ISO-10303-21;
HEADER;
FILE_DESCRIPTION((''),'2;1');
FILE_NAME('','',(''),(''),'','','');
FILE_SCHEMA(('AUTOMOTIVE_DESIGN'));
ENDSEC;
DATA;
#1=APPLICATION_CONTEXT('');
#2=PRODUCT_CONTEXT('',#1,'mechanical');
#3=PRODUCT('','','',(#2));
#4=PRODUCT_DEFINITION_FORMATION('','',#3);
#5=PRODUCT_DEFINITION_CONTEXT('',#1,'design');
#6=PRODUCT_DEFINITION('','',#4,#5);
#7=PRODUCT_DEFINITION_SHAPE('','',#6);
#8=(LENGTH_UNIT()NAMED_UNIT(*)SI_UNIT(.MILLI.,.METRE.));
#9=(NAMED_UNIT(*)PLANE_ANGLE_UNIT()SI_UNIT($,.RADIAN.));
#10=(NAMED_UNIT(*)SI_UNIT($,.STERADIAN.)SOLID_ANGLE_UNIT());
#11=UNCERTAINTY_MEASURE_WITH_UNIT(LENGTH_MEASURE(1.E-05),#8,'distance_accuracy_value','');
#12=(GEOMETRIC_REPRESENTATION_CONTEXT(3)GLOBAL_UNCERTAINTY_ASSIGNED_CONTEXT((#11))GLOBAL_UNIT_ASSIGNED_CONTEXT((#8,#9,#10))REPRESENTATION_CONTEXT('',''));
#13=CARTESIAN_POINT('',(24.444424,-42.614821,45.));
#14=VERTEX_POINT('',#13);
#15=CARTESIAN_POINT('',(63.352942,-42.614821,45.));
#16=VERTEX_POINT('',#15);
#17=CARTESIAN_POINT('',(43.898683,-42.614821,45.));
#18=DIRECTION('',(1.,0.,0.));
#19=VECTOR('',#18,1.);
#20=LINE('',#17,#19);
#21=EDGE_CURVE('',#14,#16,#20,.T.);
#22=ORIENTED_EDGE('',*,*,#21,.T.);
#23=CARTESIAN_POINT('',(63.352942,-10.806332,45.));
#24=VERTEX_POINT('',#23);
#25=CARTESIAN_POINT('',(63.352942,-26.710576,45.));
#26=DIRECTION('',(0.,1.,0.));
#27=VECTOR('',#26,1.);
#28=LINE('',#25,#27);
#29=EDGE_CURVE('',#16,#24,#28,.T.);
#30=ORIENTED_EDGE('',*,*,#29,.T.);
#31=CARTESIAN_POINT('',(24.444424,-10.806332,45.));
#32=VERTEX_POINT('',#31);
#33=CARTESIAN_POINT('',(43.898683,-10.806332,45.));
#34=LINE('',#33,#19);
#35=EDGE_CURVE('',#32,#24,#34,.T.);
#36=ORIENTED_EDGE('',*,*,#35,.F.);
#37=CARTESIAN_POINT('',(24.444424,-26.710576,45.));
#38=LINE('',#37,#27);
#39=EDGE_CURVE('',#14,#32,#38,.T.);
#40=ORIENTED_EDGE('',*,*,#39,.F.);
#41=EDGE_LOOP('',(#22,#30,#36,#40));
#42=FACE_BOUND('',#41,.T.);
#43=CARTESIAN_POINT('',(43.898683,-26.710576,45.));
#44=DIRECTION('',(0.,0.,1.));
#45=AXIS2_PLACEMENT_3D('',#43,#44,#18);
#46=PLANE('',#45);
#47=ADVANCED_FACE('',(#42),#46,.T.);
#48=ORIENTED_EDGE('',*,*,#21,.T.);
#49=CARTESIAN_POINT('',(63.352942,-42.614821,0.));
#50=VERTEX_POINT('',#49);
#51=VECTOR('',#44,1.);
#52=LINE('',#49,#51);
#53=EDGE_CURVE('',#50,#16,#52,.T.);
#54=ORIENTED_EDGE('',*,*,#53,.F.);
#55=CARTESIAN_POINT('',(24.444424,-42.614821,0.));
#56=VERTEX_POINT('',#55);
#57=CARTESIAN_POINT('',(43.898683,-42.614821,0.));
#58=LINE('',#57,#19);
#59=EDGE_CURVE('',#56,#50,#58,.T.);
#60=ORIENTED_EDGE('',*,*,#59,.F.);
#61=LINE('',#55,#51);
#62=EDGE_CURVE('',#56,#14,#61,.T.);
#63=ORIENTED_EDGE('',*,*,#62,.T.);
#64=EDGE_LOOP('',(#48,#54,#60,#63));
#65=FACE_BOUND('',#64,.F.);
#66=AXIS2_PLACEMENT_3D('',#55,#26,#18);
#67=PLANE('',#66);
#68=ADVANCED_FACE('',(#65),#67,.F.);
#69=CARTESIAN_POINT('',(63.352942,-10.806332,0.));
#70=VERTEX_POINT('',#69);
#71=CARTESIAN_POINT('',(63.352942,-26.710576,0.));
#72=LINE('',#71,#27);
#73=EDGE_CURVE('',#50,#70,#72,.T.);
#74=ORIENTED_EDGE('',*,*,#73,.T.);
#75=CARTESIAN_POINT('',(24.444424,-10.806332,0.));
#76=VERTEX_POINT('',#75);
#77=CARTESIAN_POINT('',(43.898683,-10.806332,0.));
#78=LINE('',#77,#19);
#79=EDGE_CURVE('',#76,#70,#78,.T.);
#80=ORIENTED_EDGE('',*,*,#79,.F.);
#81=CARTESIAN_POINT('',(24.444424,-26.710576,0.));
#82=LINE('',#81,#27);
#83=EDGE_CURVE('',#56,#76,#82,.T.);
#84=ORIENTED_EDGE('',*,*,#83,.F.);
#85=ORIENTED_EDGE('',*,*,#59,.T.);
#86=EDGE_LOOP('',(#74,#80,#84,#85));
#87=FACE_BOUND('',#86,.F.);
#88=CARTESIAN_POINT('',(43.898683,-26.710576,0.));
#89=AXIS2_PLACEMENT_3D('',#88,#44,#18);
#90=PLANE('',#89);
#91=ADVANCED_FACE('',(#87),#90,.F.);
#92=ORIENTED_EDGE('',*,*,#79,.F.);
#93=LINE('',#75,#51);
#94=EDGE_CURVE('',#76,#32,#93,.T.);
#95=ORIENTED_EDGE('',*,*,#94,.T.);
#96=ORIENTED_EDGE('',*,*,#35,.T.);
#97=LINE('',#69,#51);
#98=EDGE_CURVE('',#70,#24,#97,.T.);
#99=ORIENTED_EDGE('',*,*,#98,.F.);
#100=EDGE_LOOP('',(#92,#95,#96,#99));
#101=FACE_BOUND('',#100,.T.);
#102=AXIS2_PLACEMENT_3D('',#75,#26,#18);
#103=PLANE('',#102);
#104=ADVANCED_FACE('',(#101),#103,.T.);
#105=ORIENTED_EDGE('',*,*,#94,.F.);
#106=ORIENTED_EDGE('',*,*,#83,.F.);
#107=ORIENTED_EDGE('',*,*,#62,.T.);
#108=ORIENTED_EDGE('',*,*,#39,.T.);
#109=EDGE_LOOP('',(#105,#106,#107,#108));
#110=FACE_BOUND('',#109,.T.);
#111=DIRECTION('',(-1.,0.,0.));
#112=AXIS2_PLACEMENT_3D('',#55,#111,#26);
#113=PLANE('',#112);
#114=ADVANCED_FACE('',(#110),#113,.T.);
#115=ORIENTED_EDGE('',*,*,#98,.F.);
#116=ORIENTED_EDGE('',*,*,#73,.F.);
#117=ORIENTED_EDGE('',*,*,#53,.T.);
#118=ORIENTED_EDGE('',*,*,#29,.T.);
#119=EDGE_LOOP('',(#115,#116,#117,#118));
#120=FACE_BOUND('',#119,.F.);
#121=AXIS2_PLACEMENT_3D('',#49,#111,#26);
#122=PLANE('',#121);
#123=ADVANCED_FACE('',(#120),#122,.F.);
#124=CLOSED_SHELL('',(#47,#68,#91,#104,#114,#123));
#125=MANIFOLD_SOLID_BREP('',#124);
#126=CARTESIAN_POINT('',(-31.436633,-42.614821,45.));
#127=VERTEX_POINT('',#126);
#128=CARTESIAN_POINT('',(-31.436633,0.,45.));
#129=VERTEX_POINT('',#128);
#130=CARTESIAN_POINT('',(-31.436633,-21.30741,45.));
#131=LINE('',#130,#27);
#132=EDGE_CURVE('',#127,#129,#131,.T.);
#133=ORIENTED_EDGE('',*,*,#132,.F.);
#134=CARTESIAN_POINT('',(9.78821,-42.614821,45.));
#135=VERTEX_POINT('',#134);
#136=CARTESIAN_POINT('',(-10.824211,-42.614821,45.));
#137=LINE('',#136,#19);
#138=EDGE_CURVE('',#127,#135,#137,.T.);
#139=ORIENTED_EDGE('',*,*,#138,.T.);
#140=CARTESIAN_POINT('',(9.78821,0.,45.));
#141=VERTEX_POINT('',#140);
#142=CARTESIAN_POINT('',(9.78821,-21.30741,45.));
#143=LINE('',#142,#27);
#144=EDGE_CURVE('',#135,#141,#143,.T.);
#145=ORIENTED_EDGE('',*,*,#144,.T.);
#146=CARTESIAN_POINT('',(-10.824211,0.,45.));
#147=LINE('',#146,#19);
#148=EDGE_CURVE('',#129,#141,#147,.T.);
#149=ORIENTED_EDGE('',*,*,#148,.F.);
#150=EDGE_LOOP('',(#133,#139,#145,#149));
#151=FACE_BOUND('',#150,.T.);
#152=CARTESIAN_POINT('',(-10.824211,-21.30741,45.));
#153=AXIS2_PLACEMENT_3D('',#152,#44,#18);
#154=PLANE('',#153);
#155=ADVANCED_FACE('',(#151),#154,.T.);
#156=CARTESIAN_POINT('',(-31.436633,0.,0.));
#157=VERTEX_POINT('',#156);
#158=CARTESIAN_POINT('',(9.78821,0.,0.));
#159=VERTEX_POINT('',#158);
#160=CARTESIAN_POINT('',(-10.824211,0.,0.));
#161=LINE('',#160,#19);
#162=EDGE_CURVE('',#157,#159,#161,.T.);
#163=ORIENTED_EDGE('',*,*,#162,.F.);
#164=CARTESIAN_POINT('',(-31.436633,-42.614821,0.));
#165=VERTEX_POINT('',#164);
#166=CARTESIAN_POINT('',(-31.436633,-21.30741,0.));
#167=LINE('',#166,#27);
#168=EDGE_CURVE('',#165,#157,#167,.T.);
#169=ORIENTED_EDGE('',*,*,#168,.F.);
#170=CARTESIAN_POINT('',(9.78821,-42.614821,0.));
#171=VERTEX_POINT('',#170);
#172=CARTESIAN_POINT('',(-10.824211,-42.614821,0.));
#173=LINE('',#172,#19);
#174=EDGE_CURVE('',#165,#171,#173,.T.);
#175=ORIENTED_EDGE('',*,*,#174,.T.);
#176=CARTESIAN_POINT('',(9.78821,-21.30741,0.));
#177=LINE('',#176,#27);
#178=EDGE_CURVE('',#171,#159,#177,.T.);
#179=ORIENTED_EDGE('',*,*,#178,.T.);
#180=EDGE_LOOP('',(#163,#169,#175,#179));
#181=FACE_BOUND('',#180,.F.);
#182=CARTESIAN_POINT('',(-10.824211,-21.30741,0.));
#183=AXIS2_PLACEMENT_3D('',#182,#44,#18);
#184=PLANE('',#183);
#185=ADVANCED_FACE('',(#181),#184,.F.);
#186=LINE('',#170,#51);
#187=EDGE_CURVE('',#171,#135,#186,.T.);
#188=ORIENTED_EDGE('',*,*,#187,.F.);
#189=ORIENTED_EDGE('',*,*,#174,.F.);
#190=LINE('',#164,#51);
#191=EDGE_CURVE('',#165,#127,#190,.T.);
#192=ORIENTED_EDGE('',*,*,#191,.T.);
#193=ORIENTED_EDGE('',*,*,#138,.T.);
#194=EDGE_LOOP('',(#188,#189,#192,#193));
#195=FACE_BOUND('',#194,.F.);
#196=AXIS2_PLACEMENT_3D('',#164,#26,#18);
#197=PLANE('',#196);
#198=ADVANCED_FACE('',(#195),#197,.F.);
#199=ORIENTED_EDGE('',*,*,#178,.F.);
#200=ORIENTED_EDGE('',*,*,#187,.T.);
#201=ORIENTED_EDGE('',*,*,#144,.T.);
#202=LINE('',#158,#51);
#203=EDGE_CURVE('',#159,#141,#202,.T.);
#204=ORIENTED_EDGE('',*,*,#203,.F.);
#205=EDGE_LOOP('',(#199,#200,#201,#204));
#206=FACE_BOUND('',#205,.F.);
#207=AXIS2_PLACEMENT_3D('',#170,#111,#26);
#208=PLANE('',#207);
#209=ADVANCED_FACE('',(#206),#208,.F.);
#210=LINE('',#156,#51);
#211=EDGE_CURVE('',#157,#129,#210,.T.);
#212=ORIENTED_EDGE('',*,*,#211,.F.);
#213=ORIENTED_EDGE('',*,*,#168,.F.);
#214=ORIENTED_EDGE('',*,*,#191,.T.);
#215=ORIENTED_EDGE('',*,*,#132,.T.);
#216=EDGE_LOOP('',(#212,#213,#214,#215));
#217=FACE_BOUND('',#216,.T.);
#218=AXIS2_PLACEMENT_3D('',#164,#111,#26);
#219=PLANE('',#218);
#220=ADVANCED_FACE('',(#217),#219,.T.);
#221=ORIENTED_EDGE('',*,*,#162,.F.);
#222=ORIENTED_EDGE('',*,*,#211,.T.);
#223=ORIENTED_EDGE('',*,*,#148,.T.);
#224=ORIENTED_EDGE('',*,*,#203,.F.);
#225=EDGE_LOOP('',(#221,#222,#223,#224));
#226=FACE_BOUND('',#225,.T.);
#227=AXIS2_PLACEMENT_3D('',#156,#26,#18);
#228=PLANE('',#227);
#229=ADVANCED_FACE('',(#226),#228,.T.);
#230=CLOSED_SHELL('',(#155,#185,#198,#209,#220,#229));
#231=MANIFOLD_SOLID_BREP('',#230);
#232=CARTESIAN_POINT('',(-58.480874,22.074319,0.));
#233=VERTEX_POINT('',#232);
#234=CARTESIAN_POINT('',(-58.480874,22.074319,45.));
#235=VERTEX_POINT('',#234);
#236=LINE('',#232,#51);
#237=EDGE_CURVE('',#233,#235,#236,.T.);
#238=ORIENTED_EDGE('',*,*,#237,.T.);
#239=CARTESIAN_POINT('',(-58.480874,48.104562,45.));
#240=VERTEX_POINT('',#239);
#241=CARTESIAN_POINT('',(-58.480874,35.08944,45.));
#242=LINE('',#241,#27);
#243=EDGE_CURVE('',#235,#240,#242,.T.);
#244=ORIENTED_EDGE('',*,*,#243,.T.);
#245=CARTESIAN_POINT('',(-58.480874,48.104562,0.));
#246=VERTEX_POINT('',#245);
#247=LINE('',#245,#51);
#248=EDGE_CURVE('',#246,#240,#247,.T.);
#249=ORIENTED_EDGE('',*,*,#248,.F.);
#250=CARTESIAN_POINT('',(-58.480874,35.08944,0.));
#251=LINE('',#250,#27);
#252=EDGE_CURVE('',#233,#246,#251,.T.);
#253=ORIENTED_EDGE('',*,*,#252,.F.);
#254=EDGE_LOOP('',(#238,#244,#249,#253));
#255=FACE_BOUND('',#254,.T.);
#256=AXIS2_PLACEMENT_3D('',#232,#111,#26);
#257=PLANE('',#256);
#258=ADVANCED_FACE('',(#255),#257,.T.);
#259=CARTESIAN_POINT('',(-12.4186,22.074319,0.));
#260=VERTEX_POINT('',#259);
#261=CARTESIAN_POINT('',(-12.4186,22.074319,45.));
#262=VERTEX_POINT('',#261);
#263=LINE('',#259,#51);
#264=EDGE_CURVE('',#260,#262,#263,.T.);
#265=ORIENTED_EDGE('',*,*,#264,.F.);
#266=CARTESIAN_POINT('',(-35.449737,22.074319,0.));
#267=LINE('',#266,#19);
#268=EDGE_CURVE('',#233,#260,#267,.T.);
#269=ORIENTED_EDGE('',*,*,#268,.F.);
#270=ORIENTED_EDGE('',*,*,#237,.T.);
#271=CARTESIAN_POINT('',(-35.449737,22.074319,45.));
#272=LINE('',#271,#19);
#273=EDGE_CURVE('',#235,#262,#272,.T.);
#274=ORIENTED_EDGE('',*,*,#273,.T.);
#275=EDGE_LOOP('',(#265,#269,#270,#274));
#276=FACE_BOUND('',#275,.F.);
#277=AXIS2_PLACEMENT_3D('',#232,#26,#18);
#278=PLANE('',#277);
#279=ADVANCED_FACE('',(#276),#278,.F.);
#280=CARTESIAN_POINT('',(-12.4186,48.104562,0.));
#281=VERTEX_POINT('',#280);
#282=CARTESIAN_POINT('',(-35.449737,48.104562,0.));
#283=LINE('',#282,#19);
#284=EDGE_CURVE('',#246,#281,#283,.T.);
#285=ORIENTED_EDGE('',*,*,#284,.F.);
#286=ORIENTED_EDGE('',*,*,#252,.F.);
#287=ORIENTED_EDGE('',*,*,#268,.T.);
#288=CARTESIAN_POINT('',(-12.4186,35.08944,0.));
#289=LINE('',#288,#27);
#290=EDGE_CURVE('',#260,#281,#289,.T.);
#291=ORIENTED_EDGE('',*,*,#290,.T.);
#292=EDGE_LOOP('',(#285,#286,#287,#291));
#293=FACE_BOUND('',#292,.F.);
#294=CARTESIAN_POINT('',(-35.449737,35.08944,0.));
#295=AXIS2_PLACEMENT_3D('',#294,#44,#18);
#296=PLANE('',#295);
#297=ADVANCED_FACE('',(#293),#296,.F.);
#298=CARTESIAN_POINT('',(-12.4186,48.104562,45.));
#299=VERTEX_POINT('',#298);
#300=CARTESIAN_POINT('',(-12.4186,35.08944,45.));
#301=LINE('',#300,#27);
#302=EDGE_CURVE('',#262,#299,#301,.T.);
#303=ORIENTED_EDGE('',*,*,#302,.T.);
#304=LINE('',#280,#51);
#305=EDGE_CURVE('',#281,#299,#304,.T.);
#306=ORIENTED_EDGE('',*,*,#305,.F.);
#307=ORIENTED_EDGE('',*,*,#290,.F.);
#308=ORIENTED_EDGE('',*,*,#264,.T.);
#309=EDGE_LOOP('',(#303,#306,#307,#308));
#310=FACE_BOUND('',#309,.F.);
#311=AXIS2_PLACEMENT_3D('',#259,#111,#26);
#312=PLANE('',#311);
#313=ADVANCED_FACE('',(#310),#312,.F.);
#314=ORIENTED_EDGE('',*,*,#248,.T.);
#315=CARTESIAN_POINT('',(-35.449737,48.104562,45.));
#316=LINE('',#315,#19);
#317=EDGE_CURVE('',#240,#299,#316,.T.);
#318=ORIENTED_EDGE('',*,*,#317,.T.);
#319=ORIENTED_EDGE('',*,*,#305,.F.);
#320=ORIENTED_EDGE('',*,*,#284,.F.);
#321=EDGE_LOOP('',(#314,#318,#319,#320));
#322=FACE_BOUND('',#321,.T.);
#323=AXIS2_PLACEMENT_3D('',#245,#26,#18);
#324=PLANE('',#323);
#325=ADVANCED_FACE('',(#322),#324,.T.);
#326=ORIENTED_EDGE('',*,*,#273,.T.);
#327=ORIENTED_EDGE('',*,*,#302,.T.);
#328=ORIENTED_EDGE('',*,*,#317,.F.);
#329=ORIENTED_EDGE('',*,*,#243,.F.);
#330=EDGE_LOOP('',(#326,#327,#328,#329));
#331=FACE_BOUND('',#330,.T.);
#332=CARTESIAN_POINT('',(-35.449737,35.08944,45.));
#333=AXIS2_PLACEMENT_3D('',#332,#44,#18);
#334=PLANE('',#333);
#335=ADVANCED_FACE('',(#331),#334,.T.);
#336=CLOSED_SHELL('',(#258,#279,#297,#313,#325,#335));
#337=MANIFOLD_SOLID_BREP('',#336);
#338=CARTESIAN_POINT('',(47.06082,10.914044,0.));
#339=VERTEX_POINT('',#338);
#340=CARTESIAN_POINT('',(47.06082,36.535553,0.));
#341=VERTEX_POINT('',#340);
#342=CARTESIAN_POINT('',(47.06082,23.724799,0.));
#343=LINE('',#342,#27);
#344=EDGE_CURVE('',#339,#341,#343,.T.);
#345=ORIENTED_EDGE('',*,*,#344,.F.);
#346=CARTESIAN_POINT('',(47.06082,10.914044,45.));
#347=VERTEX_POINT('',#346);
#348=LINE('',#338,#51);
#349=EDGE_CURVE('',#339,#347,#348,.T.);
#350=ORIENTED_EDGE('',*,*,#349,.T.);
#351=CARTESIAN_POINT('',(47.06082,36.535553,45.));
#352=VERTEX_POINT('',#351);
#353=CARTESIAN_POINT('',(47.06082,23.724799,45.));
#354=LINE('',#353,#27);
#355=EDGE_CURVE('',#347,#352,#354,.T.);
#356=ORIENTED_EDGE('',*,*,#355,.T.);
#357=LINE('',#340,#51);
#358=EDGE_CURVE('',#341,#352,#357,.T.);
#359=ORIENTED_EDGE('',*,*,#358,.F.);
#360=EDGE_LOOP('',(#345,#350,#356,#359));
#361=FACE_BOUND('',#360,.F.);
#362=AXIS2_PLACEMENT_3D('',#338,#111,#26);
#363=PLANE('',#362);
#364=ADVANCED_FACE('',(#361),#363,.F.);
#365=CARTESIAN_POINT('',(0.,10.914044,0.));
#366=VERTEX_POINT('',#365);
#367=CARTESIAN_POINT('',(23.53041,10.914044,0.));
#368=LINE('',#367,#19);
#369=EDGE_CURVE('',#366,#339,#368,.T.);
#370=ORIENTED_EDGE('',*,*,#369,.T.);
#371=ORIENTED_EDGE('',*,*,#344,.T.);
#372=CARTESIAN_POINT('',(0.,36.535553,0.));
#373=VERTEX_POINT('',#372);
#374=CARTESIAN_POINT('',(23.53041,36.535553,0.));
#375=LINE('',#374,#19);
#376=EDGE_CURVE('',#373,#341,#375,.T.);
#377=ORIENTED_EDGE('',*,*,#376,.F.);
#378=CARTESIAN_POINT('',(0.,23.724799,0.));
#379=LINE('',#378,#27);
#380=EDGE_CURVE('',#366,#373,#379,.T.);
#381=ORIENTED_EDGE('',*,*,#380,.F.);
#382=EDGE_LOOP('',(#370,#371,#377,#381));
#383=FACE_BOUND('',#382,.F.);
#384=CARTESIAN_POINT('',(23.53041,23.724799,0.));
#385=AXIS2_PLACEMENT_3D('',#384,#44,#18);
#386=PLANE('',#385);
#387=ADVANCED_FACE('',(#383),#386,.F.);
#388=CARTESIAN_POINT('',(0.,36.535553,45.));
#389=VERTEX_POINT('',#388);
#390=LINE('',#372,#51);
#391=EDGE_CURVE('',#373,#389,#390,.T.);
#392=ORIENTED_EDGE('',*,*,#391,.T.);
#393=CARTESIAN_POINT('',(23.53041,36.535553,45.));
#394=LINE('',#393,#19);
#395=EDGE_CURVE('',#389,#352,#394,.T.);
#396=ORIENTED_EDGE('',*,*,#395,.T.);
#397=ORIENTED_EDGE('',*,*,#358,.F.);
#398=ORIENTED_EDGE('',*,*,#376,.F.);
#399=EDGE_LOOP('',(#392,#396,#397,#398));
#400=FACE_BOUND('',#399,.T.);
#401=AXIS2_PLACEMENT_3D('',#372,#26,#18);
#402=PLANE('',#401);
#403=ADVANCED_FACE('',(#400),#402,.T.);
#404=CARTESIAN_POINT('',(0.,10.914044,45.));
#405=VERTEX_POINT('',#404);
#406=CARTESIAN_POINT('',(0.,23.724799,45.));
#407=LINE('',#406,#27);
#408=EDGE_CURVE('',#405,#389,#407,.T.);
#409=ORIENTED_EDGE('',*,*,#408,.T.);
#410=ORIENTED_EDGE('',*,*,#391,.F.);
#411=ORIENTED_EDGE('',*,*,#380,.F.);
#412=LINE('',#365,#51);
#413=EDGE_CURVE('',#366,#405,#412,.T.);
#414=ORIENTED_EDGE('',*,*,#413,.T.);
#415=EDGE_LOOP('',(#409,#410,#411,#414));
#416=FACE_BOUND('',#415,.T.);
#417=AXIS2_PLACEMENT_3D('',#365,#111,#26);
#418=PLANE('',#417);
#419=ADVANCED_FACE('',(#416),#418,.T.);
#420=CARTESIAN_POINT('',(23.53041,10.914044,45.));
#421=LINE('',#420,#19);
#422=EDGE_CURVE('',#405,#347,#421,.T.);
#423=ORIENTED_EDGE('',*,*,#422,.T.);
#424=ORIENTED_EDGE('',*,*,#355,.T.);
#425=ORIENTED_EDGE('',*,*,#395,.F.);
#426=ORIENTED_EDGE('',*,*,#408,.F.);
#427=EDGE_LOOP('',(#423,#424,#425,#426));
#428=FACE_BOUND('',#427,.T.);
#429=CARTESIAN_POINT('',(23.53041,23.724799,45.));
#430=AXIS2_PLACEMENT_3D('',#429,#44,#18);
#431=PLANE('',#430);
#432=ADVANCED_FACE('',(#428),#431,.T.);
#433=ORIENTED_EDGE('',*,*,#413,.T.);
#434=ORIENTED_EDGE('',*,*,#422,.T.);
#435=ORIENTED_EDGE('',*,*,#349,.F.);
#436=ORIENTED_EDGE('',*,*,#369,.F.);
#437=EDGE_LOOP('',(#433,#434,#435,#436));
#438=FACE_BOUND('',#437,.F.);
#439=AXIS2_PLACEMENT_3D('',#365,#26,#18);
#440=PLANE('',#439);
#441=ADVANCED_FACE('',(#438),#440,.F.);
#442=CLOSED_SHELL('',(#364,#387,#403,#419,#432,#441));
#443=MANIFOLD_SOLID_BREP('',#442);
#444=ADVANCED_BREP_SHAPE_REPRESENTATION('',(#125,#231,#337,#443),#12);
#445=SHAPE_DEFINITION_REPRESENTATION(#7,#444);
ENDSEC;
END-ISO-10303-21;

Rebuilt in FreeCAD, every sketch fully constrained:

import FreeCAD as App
import Part
import Sketcher
Q = App.Units.Quantity


def add_polygon(sketch, points):
    """Adds a closed chain of lines whose ends are joined by coincident constraints."""
    first, n = sketch.GeometryCount, len(points)
    for a, b in zip(points, points[1:] + points[:1]):
        sketch.addGeometry(Part.LineSegment(App.Vector(*a, 0), App.Vector(*b, 0)), False)
    for i in range(n):
        sketch.addConstraint(Sketcher.Constraint("Coincident", first + i, 2, first + (i + 1) % n, 1))

doc = App.newDocument("Part")
body = doc.addObject("PartDesign::Body", "Body")
body.AllowCompound = True

sketch1 = body.newObject("Sketcher::SketchObject", "Sketch")
sketch1.AttachmentSupport = (doc.getObject("XY_Plane"), [""])
sketch1.MapMode = "FlatFace"
add_polygon(sketch1, [(-31, 0), (-31, -43), (10, -43), (10, 0)])
add_polygon(sketch1, [(0, 37), (0, 11), (47, 11), (47, 37)])
add_polygon(sketch1, [(24, -11), (24, -43), (63, -43), (63, -11)])
add_polygon(sketch1, [(-58, 48), (-58, 22), (-12, 22), (-12, 48)])
sketch1.addConstraint([
    Sketcher.Constraint("Vertical", 0),
    Sketcher.Constraint("Horizontal", 1),
    Sketcher.Constraint("Vertical", 2),
    Sketcher.Constraint("Horizontal", 3),
    Sketcher.Constraint("Vertical", 4),
    Sketcher.Constraint("Horizontal", 5),
    Sketcher.Constraint("Vertical", 6),
    Sketcher.Constraint("Horizontal", 7),
    Sketcher.Constraint("Vertical", 8),
    Sketcher.Constraint("Horizontal", 9),
    Sketcher.Constraint("Vertical", 10),
    Sketcher.Constraint("Horizontal", 11),
    Sketcher.Constraint("Vertical", 12),
    Sketcher.Constraint("Horizontal", 13),
    Sketcher.Constraint("Vertical", 14),
    Sketcher.Constraint("Horizontal", 15),
    Sketcher.Constraint("PointOnObject", 2, 2, -1),
    Sketcher.Constraint("PointOnObject", 4, 2, -2),
    Sketcher.Constraint("Horizontal", 1, 2, 8, 2),
    Sketcher.Constraint("DistanceX", 5, 1, 5, 2, Q("47.060821 mm")),
    Sketcher.Constraint("DistanceY", 0, 2, 0, 1, Q("42.614821 mm")),
    Sketcher.Constraint("DistanceY", 4, 2, 4, 1, Q("25.621509 mm")),
    Sketcher.Constraint("DistanceY", 8, 2, 8, 1, Q("31.808489 mm")),
    Sketcher.Constraint("DistanceX", 13, 2, -1, 1, Q("12.4186 mm")),
    Sketcher.Constraint("DistanceX", 1, 1, 1, 2, Q("41.224843 mm")),
    Sketcher.Constraint("DistanceX", 9, 1, 9, 2, Q("38.908518 mm")),
    Sketcher.Constraint("DistanceX", 13, 1, 13, 2, Q("46.062274 mm")),
    Sketcher.Constraint("DistanceY", 12, 2, 12, 1, Q("26.030243 mm")),
    Sketcher.Constraint("DistanceX", -1, 1, 1, 2, Q("9.78821 mm")),
    Sketcher.Constraint("DistanceY", -1, 1, 12, 2, Q("22.074319 mm")),
    Sketcher.Constraint("DistanceX", 1, 2, 9, 2, Q("53.564732 mm")),
    Sketcher.Constraint("DistanceY", 7, 2, 14, 2, Q("11.569008 mm")),
])
pad1 = body.newObject("PartDesign::Pad", "Pad")
pad1.Profile = sketch1
pad1.Length = 45

doc.recompute()
